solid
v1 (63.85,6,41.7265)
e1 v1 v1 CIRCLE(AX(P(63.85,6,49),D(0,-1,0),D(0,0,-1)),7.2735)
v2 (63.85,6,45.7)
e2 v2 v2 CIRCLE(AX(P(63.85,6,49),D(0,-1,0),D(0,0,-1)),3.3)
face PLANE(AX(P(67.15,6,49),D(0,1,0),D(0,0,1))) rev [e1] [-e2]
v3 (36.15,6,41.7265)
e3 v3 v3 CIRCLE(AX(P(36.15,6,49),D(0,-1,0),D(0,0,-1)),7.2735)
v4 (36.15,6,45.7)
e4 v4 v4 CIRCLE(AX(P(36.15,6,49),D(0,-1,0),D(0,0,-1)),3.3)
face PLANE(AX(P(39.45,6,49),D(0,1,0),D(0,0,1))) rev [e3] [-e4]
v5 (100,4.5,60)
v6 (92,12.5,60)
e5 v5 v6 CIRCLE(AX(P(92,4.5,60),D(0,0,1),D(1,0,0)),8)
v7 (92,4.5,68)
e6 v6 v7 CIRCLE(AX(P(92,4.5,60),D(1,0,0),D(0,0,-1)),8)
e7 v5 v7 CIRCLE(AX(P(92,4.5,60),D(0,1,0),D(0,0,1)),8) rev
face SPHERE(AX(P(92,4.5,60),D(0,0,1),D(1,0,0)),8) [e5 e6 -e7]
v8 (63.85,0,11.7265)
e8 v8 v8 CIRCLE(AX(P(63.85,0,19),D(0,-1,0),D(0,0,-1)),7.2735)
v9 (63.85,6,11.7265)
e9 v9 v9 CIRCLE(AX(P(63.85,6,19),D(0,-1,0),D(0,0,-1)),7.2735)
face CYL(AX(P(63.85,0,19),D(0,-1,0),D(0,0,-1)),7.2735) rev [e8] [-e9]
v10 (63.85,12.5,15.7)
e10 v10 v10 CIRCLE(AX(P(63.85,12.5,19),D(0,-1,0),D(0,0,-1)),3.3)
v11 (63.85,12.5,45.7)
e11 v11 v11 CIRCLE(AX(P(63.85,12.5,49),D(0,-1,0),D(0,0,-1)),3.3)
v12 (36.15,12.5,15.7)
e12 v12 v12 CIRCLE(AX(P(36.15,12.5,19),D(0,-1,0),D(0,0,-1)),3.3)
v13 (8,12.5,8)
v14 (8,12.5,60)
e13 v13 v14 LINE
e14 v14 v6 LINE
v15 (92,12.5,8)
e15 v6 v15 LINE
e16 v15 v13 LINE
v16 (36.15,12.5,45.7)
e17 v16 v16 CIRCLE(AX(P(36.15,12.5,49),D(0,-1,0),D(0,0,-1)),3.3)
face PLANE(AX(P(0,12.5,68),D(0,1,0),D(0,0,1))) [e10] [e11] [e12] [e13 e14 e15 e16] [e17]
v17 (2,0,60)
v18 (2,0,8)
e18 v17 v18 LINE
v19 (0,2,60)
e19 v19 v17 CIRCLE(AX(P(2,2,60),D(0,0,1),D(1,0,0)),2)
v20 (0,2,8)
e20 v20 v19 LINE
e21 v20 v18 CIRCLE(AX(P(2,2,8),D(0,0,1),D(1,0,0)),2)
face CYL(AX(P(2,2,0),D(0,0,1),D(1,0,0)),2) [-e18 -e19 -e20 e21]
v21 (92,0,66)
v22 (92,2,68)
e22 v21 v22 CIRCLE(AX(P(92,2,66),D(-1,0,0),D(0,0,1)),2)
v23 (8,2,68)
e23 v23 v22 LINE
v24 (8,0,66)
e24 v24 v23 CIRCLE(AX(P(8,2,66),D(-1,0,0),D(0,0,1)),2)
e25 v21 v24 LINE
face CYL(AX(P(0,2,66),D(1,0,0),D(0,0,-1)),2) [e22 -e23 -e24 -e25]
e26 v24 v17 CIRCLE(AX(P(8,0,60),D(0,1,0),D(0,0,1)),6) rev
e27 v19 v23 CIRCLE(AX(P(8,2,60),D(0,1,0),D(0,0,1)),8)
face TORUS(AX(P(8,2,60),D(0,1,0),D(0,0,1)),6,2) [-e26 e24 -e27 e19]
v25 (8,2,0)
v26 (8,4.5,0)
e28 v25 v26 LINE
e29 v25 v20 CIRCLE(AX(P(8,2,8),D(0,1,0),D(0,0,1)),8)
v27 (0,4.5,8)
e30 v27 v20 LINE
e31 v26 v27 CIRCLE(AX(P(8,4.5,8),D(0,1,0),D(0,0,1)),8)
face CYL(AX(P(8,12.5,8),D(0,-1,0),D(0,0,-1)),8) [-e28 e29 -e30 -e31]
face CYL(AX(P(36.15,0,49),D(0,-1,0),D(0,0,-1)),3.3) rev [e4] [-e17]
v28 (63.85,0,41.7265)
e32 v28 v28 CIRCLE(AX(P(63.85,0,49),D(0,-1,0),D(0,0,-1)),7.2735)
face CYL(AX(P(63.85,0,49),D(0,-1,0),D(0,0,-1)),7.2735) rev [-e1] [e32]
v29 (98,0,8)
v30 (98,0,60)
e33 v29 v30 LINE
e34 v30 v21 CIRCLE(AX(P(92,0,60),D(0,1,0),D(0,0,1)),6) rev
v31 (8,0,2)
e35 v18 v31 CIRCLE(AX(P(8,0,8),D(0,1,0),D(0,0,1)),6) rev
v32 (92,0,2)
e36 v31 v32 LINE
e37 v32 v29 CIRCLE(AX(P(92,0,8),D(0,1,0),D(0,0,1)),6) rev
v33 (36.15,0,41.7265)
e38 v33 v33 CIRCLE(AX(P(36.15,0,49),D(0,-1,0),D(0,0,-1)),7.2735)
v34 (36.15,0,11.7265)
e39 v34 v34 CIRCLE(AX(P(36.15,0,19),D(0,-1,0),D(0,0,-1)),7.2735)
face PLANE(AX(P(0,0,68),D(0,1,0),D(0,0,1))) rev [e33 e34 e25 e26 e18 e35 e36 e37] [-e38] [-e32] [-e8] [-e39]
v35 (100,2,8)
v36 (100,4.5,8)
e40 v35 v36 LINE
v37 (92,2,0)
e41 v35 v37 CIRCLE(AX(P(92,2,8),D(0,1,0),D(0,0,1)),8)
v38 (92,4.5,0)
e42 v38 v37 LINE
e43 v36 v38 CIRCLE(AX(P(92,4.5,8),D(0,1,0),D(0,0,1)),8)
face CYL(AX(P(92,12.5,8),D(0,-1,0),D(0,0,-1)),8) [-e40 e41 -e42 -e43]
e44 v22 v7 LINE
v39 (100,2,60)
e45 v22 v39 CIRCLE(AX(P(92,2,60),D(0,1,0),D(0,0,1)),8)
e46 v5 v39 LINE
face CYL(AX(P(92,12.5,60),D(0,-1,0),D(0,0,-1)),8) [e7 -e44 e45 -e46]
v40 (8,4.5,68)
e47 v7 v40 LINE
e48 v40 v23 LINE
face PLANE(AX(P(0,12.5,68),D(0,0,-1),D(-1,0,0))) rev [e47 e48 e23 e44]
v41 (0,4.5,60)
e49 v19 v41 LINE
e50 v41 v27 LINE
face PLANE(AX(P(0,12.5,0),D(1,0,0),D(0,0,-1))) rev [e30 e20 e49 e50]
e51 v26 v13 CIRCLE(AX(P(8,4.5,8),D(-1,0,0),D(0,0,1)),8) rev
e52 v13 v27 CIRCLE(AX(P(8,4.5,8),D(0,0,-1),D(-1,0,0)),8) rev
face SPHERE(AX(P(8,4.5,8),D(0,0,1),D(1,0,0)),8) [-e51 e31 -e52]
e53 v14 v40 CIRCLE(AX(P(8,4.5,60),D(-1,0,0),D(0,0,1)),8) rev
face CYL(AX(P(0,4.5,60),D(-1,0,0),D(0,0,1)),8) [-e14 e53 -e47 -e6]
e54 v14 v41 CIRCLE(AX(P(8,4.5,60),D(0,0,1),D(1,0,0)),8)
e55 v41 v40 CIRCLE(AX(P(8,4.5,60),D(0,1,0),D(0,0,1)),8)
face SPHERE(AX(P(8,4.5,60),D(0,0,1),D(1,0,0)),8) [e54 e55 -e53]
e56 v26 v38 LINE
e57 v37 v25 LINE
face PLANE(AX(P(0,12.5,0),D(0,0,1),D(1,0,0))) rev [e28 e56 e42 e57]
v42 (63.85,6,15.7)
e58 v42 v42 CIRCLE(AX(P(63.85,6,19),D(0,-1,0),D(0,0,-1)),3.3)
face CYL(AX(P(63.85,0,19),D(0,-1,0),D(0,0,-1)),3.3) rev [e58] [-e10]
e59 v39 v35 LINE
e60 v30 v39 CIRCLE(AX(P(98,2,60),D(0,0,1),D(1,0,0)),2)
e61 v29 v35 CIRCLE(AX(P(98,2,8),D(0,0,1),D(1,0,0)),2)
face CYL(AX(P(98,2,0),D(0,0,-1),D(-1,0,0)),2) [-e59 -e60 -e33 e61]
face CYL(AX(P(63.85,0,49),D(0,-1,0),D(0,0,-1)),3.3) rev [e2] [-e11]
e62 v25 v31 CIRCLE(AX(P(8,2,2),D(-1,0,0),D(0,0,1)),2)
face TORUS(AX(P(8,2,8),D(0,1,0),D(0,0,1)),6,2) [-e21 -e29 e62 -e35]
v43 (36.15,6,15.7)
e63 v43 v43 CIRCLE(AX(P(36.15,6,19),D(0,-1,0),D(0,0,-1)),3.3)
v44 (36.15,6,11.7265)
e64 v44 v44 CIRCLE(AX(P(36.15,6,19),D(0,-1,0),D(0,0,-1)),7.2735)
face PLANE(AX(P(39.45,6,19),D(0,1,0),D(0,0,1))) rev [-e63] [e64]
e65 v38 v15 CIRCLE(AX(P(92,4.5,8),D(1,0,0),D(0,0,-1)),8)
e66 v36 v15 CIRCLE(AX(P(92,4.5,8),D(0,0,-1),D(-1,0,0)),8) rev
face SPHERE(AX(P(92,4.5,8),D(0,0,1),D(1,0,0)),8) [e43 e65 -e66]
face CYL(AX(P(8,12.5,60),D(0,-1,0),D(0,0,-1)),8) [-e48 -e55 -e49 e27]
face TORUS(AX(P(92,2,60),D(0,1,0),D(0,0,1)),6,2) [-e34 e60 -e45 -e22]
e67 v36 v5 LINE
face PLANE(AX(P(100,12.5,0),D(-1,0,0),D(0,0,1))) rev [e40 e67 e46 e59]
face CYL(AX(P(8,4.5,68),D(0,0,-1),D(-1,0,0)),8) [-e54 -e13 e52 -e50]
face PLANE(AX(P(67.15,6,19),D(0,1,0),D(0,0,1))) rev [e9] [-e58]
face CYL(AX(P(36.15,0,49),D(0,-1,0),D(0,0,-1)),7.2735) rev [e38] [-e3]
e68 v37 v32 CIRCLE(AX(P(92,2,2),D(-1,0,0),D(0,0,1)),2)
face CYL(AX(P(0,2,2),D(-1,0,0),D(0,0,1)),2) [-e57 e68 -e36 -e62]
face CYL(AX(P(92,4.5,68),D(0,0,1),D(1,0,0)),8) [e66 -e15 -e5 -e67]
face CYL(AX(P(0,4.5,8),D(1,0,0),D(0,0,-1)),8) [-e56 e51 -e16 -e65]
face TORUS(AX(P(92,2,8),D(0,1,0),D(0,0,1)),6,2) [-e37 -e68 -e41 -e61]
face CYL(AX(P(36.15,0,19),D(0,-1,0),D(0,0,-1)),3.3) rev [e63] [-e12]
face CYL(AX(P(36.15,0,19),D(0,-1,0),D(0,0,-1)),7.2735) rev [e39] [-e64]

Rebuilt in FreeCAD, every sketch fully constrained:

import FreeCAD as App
import Part
import Sketcher


def edges_at(feature, points):
    """Names of the edges that pass closest to the given points."""
    edges = feature.Shape.Edges
    near = lambda p: min(range(len(edges)), key=lambda i: edges[i].distToShape(Part.Vertex(*p))[0])
    return sorted({f"Edge{near(p) + 1}" for p in points})


def add_polygon(sketch, points):
    """Adds a closed chain of lines whose ends are joined by coincident constraints."""
    first, n = sketch.GeometryCount, len(points)
    for a, b in zip(points, points[1:] + points[:1]):
        sketch.addGeometry(Part.LineSegment(App.Vector(*a, 0), App.Vector(*b, 0)), False)
    for i in range(n):
        sketch.addConstraint(Sketcher.Constraint("Coincident", first + i, 2, first + (i + 1) % n, 1))

doc = App.newDocument("Part")
body = doc.addObject("PartDesign::Body", "Body")

sketch1 = doc.addObject("Sketcher::SketchObject", "Sketch")
body.addObject(sketch1)
sketch1.AttachmentSupport = (doc.XZ_Plane, [""])
sketch1.MapMode = "FlatFace"
add_polygon(sketch1, [(0, 0), (0, 68), (100, 68), (100, 0)])
sketch1.addConstraint(Sketcher.Constraint("Vertical", 0))
sketch1.addConstraint(Sketcher.Constraint("Horizontal", 1))
sketch1.addConstraint(Sketcher.Constraint("Vertical", 2))
sketch1.addConstraint(Sketcher.Constraint("Horizontal", 3))
sketch1.addConstraint(Sketcher.Constraint("Coincident", 3, 2, -1, 1))
sketch1.addConstraint(Sketcher.Constraint("DistanceX", 1, 1, 1, 2, 100.0))
sketch1.addConstraint(Sketcher.Constraint("DistanceY", 0, 1, 0, 2, 68.0))
pad1 = doc.addObject("PartDesign::Pad", "Pad")
body.addObject(pad1)
pad1.Profile = sketch1
pad1.Length = 12.5
pad1.Reversed = True

sketch2 = doc.addObject("Sketcher::SketchObject", "Sketch001")
body.addObject(sketch2)
sketch2.AttachmentSupport = (doc.XZ_Plane, [""])
sketch2.MapMode = "FlatFace"
sketch2.addGeometry(Part.Circle(App.Vector(36.1, 49, 0), App.Vector(0, 0, 1), 3.3), False)
sketch2.addGeometry(Part.Circle(App.Vector(36.1, 19, 0), App.Vector(0, 0, 1), 3.3), False)
sketch2.addGeometry(Part.Circle(App.Vector(63.9, 49, 0), App.Vector(0, 0, 1), 3.3), False)
sketch2.addGeometry(Part.Circle(App.Vector(63.9, 19, 0), App.Vector(0, 0, 1), 3.3), False)
sketch2.addConstraint(Sketcher.Constraint("Equal", 0, 1))
sketch2.addConstraint(Sketcher.Constraint("Equal", 1, 2))
sketch2.addConstraint(Sketcher.Constraint("Equal", 2, 3))
sketch2.addConstraint(Sketcher.Constraint("Horizontal", 0, 3, 2, 3))
sketch2.addConstraint(Sketcher.Constraint("Horizontal", 1, 3, 3, 3))
sketch2.addConstraint(Sketcher.Constraint("Vertical", 0, 3, 1, 3))
sketch2.addConstraint(Sketcher.Constraint("Vertical", 2, 3, 3, 3))
sketch2.addConstraint(Sketcher.Constraint("Diameter", 0, 6.6))
sketch2.addConstraint(Sketcher.Constraint("DistanceY", -1, 1, 0, 3, 49.0))
sketch2.addConstraint(Sketcher.Constraint("DistanceY", -1, 1, 1, 3, 19.0))
sketch2.addConstraint(Sketcher.Constraint("DistanceX", 0, 3, 2, 3, 27.7))
sketch2.addConstraint(Sketcher.Constraint("DistanceX", -1, 1, 0, 3, 36.15))
doc.recompute()
hole = doc.addObject("PartDesign::Hole", "Hole")
body.addObject(hole)
hole.Profile = sketch2
hole.ThreadType = "None"
hole.Diameter = 6.6
hole.DepthType = "ThroughAll"
hole.HoleCutType = "Counterbore"
hole.HoleCutDiameter = 14.547
hole.HoleCutDepth = 6
doc.recompute()

fillet = doc.addObject("PartDesign::Fillet", "Fillet")
body.addObject(fillet)
fillet.Base = (hole, edges_at(hole, [
    (100, 12.5, 34),
    (50, 12.5, 0),
    (0, 12.5, 34),
    (50, 12.5, 68),
    (0, 6.25, 0),
    (100, 6.25, 0),
    (100, 6.25, 68),
    (0, 6.25, 68),
]))
fillet.Radius = 8
doc.recompute()

fillet2 = doc.addObject("PartDesign::Fillet", "Fillet001")
body.addObject(fillet2)
fillet2.Base = (fillet, edges_at(fillet, [
    (100, 0, 34),
    (0, 0, 34),
    (50, 0, 0),
    (50, 0, 68),
    (97.657, 0, 2.343),
    (2.343, 0, 65.657),
    (2.343, 0, 2.343),
    (97.657, 0, 65.657),
]))
fillet2.Radius = 2

doc.recompute()
